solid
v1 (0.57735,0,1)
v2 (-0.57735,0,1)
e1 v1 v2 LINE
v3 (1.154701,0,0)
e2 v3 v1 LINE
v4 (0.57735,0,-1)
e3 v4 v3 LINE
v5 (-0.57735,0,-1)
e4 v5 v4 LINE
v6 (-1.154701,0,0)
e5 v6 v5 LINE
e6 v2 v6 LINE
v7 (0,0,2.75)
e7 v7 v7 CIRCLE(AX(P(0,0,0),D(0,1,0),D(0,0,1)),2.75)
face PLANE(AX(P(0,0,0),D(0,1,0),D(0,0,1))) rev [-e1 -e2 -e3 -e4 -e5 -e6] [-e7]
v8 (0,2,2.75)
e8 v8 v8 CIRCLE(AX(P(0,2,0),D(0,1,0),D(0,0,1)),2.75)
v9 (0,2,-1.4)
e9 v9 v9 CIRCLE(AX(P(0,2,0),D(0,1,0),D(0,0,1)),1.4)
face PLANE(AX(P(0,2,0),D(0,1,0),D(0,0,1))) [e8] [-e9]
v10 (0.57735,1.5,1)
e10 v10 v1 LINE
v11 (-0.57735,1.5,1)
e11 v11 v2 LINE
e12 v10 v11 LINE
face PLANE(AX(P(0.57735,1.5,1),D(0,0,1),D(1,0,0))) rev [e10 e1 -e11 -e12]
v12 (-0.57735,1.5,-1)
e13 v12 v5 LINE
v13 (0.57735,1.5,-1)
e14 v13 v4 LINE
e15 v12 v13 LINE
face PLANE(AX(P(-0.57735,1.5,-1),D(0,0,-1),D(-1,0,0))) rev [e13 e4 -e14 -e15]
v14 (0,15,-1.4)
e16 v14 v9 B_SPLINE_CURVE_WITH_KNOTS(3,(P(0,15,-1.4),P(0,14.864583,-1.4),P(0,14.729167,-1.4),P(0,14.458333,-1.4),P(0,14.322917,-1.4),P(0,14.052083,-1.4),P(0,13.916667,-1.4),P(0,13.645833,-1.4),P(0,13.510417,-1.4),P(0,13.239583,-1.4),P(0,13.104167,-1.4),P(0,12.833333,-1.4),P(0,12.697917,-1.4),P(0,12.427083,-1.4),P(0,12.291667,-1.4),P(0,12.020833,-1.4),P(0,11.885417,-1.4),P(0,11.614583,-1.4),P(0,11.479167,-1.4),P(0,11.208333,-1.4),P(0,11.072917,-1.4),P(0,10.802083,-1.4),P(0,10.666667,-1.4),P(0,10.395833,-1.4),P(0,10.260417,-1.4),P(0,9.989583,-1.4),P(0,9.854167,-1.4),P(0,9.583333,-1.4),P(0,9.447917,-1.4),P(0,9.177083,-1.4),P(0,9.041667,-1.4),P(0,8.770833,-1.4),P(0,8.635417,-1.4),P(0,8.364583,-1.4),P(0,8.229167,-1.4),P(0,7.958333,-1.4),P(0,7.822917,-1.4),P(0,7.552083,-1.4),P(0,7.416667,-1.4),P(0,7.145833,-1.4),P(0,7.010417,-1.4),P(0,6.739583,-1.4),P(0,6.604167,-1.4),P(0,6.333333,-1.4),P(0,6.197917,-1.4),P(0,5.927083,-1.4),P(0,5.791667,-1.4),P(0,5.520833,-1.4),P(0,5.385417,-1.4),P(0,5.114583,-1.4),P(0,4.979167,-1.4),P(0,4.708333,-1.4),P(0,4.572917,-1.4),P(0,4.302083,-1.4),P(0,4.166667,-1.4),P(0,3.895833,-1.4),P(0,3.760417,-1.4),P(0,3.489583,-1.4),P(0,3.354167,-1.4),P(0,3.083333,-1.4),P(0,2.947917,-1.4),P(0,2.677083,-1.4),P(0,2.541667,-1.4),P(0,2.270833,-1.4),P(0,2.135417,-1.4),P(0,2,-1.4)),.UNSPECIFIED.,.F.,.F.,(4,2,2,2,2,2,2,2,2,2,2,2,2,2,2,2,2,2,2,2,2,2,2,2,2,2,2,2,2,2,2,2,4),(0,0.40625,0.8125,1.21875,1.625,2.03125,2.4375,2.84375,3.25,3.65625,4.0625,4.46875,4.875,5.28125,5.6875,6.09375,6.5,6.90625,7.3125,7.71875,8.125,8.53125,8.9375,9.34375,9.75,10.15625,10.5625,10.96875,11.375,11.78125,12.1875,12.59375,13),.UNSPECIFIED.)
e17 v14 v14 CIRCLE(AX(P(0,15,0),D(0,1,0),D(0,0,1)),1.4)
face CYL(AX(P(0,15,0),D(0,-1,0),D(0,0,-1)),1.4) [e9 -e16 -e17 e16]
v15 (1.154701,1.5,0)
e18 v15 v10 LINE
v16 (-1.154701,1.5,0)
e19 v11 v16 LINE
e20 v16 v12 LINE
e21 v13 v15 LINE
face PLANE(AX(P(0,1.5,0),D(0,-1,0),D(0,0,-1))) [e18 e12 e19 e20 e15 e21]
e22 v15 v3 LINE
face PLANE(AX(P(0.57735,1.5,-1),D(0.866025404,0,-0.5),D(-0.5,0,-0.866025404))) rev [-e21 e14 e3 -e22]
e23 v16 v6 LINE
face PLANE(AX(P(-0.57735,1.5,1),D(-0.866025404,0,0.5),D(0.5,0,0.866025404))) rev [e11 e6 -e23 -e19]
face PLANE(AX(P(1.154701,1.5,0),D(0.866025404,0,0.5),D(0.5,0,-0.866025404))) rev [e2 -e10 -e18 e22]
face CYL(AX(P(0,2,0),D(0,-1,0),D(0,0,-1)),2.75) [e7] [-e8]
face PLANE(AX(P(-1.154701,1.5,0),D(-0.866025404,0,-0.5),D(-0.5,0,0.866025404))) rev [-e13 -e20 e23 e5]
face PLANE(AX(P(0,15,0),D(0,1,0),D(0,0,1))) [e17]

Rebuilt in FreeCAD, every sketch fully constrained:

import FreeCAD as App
import Part
import Sketcher
Q = App.Units.Quantity

doc = App.newDocument("Part")
params = doc.addObject("Spreadsheet::Sheet", "Params")
for row, (alias, value) in enumerate([
    ("sketch1_diameter", "5.5 mm"),
    ("pad1_length", "2 mm"),
    ("sketch2_diameter", "2.8 mm"),
    ("pad2_length", "13 mm"),
    ("pocket1_length", "1.5 mm"),
], start=1):
    params.set(f"A{row}", alias)
    params.set(f"B{row}", "=" + value)
    params.setAlias(f"B{row}", alias)

body = doc.addObject("PartDesign::Body", "Body")

# Sketch on XZ plane
sketch1 = body.newObject("Sketcher::SketchObject", "Sketch")
sketch1.AttachmentSupport = (doc.getObject("XZ_Plane"), [""])
sketch1.MapMode = "FlatFace"
sketch1.addGeometry(Part.Circle(App.Vector(0, 0, 0), App.Vector(0, 0, 1), 2.75), False)
sketch1.addConstraint(Sketcher.Constraint("Coincident", 0, 3, -1, 1))
sketch1.addConstraint(Sketcher.Constraint("Diameter", 0, Q("5.5 mm")))
sketch1.setExpression("Constraints[1]", "Params.sketch1_diameter")
pad1 = body.newObject("PartDesign::Pad", "Pad")
pad1.Profile = sketch1
pad1.setExpression("Length", "Params.pad1_length")
pad1.Reversed = True

# Sketch on XZ plane
sketch2 = body.newObject("Sketcher::SketchObject", "Sketch001")
sketch2.AttachmentSupport = (doc.getObject("XZ_Plane"), [""])
sketch2.MapMode = "FlatFace"
sketch2.AttachmentOffset = App.Placement(App.Vector(0, 0, -2), App.Rotation())
sketch2.addGeometry(Part.Circle(App.Vector(0, 0, 0), App.Vector(0, 0, 1), 1.4), False)
sketch2.addConstraint(Sketcher.Constraint("Coincident", 0, 3, -1, 1))
sketch2.addConstraint(Sketcher.Constraint("Diameter", 0, Q("2.8 mm")))
sketch2.setExpression("Constraints[1]", "Params.sketch2_diameter")
pad2 = body.newObject("PartDesign::Pad", "Pad001")
pad2.Profile = sketch2
pad2.setExpression("Length", "Params.pad2_length")
pad2.Reversed = True

# Sketch on XZ plane
sketch3 = body.newObject("Sketcher::SketchObject", "Sketch002")
sketch3.AttachmentSupport = (doc.getObject("XZ_Plane"), [""])
sketch3.MapMode = "FlatFace"
sketch3.addGeometry(Part.LineSegment(App.Vector(1.154701, 0, 0), App.Vector(0.57735, 1, 0)), False)
sketch3.addGeometry(Part.LineSegment(App.Vector(0.57735, 1, 0), App.Vector(-0.57735, 1, 0)), False)
sketch3.addGeometry(Part.LineSegment(App.Vector(-0.57735, 1, 0), App.Vector(-1.154701, 0, 0)), False)
sketch3.addGeometry(Part.LineSegment(App.Vector(-1.154701, 0, 0), App.Vector(-0.57735, -1, 0)), False)
sketch3.addGeometry(Part.LineSegment(App.Vector(-0.57735, -1, 0), App.Vector(0.57735, -1, 0)), False)
sketch3.addGeometry(Part.LineSegment(App.Vector(0.57735, -1, 0), App.Vector(1.154701, 0, 0)), False)
sketch3.addConstraint(Sketcher.Constraint("Coincident", 0, 2, 1, 1))
sketch3.addConstraint(Sketcher.Constraint("Coincident", 1, 2, 2, 1))
sketch3.addConstraint(Sketcher.Constraint("Coincident", 2, 2, 3, 1))
sketch3.addConstraint(Sketcher.Constraint("Coincident", 3, 2, 4, 1))
sketch3.addConstraint(Sketcher.Constraint("Coincident", 4, 2, 5, 1))
sketch3.addConstraint(Sketcher.Constraint("Coincident", 5, 2, 0, 1))
sketch3.addConstraint(Sketcher.Constraint("Horizontal", 1))
sketch3.addConstraint(Sketcher.Constraint("Horizontal", 4))
sketch3.addConstraint(Sketcher.Constraint("Symmetric", 0, 2, 3, 2, -1, 1))
sketch3.addConstraint(Sketcher.Constraint("Symmetric", 2, 2, 5, 2, -1, 1))
sketch3.addConstraint(Sketcher.Constraint("PointOnObject", 2, 2, -1))
sketch3.addConstraint(Sketcher.Constraint("Parallel", 2, 5))
sketch3.addConstraint(Sketcher.Constraint("Vertical", 1, 2, 3, 2))
sketch3.addConstraint(Sketcher.Constraint("Angle", 0, Q("120 deg")))
sketch3.addConstraint(Sketcher.Constraint("DistanceY", -1, 1, 0, 2, Q("1 mm")))
sketch3.addConstraint(Sketcher.Constraint("DistanceX", 1, 2, 1, 1, Q("1.154701 mm")))
pocket1 = body.newObject("PartDesign::Pocket", "Pocket")
pocket1.Profile = sketch3
pocket1.setExpression("Length", "Params.pocket1_length")

doc.recompute()
